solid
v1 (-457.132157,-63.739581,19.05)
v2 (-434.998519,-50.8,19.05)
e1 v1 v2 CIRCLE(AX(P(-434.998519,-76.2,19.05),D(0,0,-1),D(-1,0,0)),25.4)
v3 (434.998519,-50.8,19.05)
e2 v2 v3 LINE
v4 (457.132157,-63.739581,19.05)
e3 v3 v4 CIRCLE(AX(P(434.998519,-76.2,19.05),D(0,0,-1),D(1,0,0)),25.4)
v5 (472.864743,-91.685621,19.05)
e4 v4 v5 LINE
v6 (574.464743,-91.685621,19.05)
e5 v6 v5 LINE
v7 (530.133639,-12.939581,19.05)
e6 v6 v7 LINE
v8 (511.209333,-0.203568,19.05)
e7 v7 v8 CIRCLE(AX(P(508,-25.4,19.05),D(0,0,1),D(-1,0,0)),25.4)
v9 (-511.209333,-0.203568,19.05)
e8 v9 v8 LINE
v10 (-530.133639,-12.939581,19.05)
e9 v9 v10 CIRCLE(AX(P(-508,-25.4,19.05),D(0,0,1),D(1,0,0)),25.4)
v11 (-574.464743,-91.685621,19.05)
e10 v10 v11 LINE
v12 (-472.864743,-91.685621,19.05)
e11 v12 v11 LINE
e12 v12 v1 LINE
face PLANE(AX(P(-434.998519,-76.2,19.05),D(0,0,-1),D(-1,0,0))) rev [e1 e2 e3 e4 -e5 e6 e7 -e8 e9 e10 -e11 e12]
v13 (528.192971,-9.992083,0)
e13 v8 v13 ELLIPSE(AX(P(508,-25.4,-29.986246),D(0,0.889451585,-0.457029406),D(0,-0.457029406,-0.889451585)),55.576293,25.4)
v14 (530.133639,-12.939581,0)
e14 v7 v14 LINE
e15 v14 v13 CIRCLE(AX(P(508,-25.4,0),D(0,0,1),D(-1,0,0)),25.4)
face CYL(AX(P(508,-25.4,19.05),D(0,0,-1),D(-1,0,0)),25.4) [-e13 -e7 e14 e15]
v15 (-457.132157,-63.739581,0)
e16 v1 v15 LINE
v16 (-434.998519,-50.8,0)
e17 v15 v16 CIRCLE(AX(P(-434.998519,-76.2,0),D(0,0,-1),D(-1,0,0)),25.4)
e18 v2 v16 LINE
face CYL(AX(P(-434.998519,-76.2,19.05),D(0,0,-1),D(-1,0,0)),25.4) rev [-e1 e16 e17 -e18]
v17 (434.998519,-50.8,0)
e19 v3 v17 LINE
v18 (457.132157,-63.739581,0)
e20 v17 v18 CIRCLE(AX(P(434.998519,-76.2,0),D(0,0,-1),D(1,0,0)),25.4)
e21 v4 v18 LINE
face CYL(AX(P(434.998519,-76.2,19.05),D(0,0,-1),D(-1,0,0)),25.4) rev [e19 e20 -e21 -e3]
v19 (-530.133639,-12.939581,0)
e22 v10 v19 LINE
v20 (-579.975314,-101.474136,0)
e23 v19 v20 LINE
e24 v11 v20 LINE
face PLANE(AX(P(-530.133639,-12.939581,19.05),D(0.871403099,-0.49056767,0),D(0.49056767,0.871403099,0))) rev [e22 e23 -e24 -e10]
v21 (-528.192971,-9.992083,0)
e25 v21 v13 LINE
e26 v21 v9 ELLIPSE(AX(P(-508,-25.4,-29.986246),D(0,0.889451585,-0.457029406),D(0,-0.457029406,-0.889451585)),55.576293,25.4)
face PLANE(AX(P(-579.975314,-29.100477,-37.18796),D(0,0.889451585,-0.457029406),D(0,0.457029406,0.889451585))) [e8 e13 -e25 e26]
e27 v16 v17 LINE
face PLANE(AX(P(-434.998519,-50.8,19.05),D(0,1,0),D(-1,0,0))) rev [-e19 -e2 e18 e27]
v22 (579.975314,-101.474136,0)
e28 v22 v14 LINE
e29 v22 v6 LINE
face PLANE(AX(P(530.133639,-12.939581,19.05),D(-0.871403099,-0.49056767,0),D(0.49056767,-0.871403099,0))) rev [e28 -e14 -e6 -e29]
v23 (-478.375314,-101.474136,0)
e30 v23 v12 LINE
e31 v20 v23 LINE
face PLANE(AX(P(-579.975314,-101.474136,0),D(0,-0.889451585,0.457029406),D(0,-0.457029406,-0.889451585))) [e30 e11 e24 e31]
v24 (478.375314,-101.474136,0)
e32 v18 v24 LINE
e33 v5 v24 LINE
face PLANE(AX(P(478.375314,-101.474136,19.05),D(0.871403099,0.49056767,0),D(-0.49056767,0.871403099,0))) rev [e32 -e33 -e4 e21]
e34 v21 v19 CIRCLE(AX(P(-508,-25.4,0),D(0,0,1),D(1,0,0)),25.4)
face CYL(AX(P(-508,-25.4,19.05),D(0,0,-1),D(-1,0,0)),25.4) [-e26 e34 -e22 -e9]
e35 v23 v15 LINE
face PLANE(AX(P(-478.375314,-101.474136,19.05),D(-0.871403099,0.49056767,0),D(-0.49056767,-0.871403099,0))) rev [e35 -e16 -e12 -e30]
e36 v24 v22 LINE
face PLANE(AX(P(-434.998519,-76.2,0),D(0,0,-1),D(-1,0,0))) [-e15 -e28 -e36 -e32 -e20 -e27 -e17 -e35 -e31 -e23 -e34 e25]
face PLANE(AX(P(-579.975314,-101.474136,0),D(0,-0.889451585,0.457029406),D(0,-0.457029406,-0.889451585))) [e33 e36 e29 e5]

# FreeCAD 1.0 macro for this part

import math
import FreeCAD as App
import Part
import Sketcher

V = App.Vector
Q = App.Units.Quantity


def add_polygon(sketch, points):
    """Adds a closed chain of lines whose ends are joined by coincident constraints."""
    first, n = sketch.GeometryCount, len(points)
    for a, b in zip(points, points[1:] + points[:1]):
        sketch.addGeometry(Part.LineSegment(App.Vector(*a, 0), App.Vector(*b, 0)), False)
    for i in range(n):
        sketch.addConstraint(Sketcher.Constraint("Coincident", first + i, 2, first + (i + 1) % n, 1))

doc = App.newDocument("Part")
body = doc.addObject("PartDesign::Body", "Body")

sketch1 = body.newObject("Sketcher::SketchObject", "Sketch")
sketch1.AttachmentSupport = (doc.getObject("XY_Plane"), [""])
sketch1.MapMode = "FlatFace"
sketch1.addGeometry([
    Part.LineSegment(V(508, 0, 0), V(-508, 0, 0)),
    Part.ArcOfCircle(Part.Circle(V(-508, -25, 0), V(0, 0, 1), 25), math.radians(90), math.radians(151)),
    Part.LineSegment(V(-530, -13, 0), V(-580, -101, 0)),
    Part.LineSegment(V(-580, -101, 0), V(-478, -101, 0)),
    Part.LineSegment(V(-478, -101, 0), V(-457, -64, 0)),
    Part.ArcOfCircle(Part.Circle(V(-435, -76, 0), V(0, 0, 1), 25), math.radians(90), math.radians(151)),
    Part.LineSegment(V(-435, -51, 0), V(435, -51, 0)),
    Part.ArcOfCircle(Part.Circle(V(435, -76, 0), V(0, 0, 1), 25), math.radians(29), math.radians(90)),
    Part.LineSegment(V(457, -64, 0), V(478, -101, 0)),
    Part.LineSegment(V(478, -101, 0), V(580, -101, 0)),
    Part.LineSegment(V(580, -101, 0), V(530, -13, 0)),
    Part.ArcOfCircle(Part.Circle(V(508, -25, 0), V(0, 0, 1), 25), math.radians(29), math.radians(90)),
], False)
sketch1.addConstraint([
    Sketcher.Constraint("Tangent", 0, 2, 1, 1),
    Sketcher.Constraint("Tangent", 1, 2, 2, 1),
    Sketcher.Constraint("Coincident", 2, 2, 3, 1),
    Sketcher.Constraint("Coincident", 3, 2, 4, 1),
    Sketcher.Constraint("Tangent", 4, 2, 5, 2),
    Sketcher.Constraint("Tangent", 5, 1, 6, 1),
    Sketcher.Constraint("Tangent", 6, 2, 7, 2),
    Sketcher.Constraint("Tangent", 7, 1, 8, 1),
    Sketcher.Constraint("Coincident", 8, 2, 9, 1),
    Sketcher.Constraint("Coincident", 9, 2, 10, 1),
    Sketcher.Constraint("Tangent", 10, 2, 11, 1),
    Sketcher.Constraint("Tangent", 11, 2, 0, 1),
    Sketcher.Constraint("Horizontal", 0),
    Sketcher.Constraint("Horizontal", 3),
    Sketcher.Constraint("Horizontal", 6),
    Sketcher.Constraint("Horizontal", 9),
    Sketcher.Constraint("Equal", 1, 5),
    Sketcher.Constraint("Equal", 5, 7),
    Sketcher.Constraint("Equal", 7, 11),
    Sketcher.Constraint("Symmetric", 0, 2, 11, 2, -1, 1),
    Sketcher.Constraint("Symmetric", 4, 2, 7, 1, -2),
    Sketcher.Constraint("Symmetric", 2, 2, 9, 2, -2),
    Sketcher.Constraint("Parallel", 2, 4),
    Sketcher.Constraint("Radius", 1, Q("1 in")),
    Sketcher.Constraint("DistanceX", 0, 2, 0, 1, Q("40 in")),
    Sketcher.Constraint("DistanceX", 3, 1, 3, 2, Q("4 in")),
    Sketcher.Constraint("Distance", 2, Q("4 in")),
    Sketcher.Constraint("DistanceY", 5, 3, -1, 1, Q("3 in")),
    Sketcher.Constraint("DistanceX", 6, 1, 6, 2, 869.997037),
])
pad1 = body.newObject("PartDesign::Pad", "Pad")
pad1.Profile = sketch1
pad1.Length = Q("0.75 in")

sketch2 = body.newObject("Sketcher::SketchObject", "Sketch001")
sketch2.AttachmentSupport = (doc.getObject("YZ_Plane"), [""])
sketch2.MapMode = "FlatFace"
add_polygon(sketch2, [(64, 112), (-170, 112), (-170, -85), (64, -85)])
add_polygon(sketch2, [(-29, -37), (-101, 0), (-70, 61), (2, 24)])
sketch2.addConstraint([
    Sketcher.Constraint("Horizontal", 0),
    Sketcher.Constraint("Vertical", 1),
    Sketcher.Constraint("Horizontal", 2),
    Sketcher.Constraint("Vertical", 3),
    Sketcher.Constraint("PointOnObject", 4, 2, -1),
    Sketcher.Constraint("Perpendicular", 4, 5),
    Sketcher.Constraint("Perpendicular", 5, 6),
    Sketcher.Constraint("Perpendicular", 6, 7),
    Sketcher.Constraint("DistanceY", 5, 2, 0, 2, 51.446101),
    Sketcher.Constraint("Distance", 5, 68.41576),
    Sketcher.Constraint("DistanceX", 0, 2, 0, 1, 233.965884),
    Sketcher.Constraint("DistanceY", 1, 2, 1, 1, 197.138385),
    Sketcher.Constraint("DistanceX", 0, 2, -1, 1, 170.32838),
    Sketcher.Constraint("DistanceX", 5, 2, -1, 1, 70.206122),
    Sketcher.Constraint("DistanceY", 7, 2, -1, 1, 37.18796),
    Sketcher.Constraint("DistanceX", 4, 2, 2, 2, 165.11164),
])
pocket1 = body.newObject("PartDesign::Pocket", "Pocket")
pocket1.Profile = sketch2
pocket1.Type = "ThroughAll"
pocket1.Midplane = True

doc.recompute()
